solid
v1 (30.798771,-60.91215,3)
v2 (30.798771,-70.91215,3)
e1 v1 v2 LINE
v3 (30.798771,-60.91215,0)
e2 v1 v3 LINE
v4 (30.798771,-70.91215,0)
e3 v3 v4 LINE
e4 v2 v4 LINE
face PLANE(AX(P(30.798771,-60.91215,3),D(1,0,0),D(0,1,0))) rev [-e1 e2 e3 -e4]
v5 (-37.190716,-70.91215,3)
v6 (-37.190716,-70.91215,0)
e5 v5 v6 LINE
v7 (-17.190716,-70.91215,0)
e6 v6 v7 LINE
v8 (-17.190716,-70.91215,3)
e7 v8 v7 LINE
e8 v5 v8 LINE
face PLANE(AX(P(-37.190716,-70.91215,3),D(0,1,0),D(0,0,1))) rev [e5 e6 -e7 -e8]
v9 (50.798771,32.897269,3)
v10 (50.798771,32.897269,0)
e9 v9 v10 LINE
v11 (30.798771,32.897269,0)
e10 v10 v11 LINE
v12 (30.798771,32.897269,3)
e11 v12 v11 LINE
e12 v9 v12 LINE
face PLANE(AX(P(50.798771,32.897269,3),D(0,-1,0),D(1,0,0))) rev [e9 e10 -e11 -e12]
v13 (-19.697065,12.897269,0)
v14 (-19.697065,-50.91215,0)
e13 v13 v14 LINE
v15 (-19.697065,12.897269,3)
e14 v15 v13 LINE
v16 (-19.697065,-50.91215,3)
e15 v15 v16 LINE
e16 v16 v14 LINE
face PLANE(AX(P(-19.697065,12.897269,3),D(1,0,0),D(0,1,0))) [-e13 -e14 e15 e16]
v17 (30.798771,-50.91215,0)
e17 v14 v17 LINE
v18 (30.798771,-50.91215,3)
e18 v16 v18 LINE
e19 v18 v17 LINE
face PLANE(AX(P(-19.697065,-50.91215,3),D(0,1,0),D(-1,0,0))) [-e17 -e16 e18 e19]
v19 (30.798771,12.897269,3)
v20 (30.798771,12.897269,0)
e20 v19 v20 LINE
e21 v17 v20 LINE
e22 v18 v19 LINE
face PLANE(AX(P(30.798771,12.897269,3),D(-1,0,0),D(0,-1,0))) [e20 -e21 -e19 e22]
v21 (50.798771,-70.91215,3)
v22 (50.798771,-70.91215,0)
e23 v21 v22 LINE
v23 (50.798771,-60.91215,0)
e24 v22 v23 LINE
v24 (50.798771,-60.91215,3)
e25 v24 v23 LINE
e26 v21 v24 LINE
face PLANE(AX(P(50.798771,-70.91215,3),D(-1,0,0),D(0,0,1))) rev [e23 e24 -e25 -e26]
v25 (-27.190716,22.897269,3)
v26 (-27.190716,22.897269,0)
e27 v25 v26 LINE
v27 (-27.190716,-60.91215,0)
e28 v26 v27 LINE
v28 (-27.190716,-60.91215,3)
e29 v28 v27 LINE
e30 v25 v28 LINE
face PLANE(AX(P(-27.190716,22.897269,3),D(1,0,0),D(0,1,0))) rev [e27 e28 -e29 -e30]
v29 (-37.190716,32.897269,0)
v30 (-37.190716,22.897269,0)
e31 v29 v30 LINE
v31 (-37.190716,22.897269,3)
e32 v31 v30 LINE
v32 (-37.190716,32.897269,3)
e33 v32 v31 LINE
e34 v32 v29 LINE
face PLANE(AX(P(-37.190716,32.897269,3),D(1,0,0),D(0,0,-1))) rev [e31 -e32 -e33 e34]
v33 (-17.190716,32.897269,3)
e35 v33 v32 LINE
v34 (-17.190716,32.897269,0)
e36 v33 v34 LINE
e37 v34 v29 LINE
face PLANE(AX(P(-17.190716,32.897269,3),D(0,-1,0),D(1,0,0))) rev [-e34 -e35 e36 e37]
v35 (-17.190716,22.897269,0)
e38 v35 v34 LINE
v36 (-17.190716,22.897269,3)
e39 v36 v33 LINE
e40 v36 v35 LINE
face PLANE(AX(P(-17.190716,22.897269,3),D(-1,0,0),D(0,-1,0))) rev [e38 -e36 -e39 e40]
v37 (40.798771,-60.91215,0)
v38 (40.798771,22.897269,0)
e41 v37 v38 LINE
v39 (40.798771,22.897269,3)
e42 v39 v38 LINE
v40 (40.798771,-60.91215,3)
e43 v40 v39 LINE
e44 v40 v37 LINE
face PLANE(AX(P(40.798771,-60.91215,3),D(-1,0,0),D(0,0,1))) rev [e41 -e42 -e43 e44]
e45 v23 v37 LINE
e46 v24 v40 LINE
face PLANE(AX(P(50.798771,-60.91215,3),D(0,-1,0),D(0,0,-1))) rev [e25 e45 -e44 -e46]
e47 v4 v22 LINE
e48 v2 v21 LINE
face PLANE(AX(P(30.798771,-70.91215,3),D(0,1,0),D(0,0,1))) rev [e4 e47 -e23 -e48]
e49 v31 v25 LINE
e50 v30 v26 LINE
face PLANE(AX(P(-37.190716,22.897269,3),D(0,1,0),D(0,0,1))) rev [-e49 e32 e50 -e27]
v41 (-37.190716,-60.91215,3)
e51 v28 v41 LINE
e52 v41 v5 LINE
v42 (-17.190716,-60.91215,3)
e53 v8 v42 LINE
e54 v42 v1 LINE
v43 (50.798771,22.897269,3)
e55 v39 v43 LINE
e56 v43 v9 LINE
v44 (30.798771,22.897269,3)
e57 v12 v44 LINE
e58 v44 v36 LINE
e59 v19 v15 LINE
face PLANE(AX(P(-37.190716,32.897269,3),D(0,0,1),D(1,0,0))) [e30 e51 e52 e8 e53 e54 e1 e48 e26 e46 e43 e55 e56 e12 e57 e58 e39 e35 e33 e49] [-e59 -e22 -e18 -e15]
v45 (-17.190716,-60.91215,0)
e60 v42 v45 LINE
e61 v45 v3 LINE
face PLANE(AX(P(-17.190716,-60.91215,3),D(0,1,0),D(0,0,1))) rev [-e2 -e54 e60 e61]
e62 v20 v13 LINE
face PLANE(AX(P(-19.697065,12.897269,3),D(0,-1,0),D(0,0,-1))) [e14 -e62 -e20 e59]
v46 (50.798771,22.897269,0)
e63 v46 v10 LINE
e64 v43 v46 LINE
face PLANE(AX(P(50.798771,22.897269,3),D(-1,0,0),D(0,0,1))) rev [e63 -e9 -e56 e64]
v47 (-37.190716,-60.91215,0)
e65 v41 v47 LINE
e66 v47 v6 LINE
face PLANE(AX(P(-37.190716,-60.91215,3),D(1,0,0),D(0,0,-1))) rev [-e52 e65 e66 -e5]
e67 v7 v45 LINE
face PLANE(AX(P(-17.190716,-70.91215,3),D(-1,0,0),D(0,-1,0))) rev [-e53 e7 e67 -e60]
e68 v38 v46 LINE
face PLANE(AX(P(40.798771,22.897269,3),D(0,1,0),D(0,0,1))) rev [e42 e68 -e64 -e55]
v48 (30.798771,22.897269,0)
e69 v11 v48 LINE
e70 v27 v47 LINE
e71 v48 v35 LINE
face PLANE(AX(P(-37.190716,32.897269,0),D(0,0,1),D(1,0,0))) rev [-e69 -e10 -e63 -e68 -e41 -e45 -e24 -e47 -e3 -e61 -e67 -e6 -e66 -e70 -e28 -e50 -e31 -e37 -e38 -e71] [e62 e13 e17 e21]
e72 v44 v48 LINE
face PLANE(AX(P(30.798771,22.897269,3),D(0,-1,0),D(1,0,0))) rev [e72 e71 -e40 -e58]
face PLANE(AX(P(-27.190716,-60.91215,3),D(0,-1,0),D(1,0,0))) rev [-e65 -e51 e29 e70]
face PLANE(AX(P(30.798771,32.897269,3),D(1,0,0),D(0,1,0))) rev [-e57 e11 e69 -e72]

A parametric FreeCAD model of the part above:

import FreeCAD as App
import Part
import Sketcher
Q = App.Units.Quantity

doc = App.newDocument("Part")
body = doc.addObject("PartDesign::Body", "Body")

sketch1 = body.newObject("Sketcher::SketchObject", "Sketch")
sketch1.AttachmentSupport = (doc.getObject("XY_Plane"), [""])
sketch1.MapMode = "FlatFace"
sketch1.addGeometry([
    Part.LineSegment(App.Vector(-37.190716, 32.897269, 0), App.Vector(-37.190716, 22.897269, 0)),
    Part.LineSegment(App.Vector(-37.190716, 22.897269, 0), App.Vector(-27.190716, 22.897269, 0)),
    Part.LineSegment(App.Vector(-27.190716, 22.897269, 0), App.Vector(-27.190716, -60.91215, 0)),
    Part.LineSegment(App.Vector(-27.190716, -60.91215, 0), App.Vector(-37.190716, -60.91215, 0)),
    Part.LineSegment(App.Vector(-37.190716, -60.91215, 0), App.Vector(-37.190716, -70.91215, 0)),
    Part.LineSegment(App.Vector(-37.190716, -70.91215, 0), App.Vector(-17.190716, -70.91215, 0)),
    Part.LineSegment(App.Vector(-17.190716, -70.91215, 0), App.Vector(-17.190716, -60.91215, 0)),
    Part.LineSegment(App.Vector(-17.190716, -60.91215, 0), App.Vector(30.798771, -60.91215, 0)),
    Part.LineSegment(App.Vector(30.798771, -60.91215, 0), App.Vector(30.798771, -70.91215, 0)),
    Part.LineSegment(App.Vector(30.798771, -70.91215, 0), App.Vector(50.798771, -70.91215, 0)),
    Part.LineSegment(App.Vector(50.798771, -70.91215, 0), App.Vector(50.798771, -60.91215, 0)),
    Part.LineSegment(App.Vector(50.798771, -60.91215, 0), App.Vector(40.798771, -60.91215, 0)),
    Part.LineSegment(App.Vector(40.798771, -60.91215, 0), App.Vector(40.798771, 22.897269, 0)),
    Part.LineSegment(App.Vector(40.798771, 22.897269, 0), App.Vector(50.798771, 22.897269, 0)),
    Part.LineSegment(App.Vector(50.798771, 22.897269, 0), App.Vector(50.798771, 32.897269, 0)),
    Part.LineSegment(App.Vector(50.798771, 32.897269, 0), App.Vector(30.798771, 32.897269, 0)),
    Part.LineSegment(App.Vector(30.798771, 32.897269, 0), App.Vector(30.798771, 22.897269, 0)),
    Part.LineSegment(App.Vector(30.798771, 22.897269, 0), App.Vector(-17.190716, 22.897269, 0)),
    Part.LineSegment(App.Vector(-17.190716, 22.897269, 0), App.Vector(-17.190716, 32.897269, 0)),
    Part.LineSegment(App.Vector(-17.190716, 32.897269, 0), App.Vector(-37.190716, 32.897269, 0)),
    Part.LineSegment(App.Vector(30.798771, -50.91215, 0), App.Vector(-19.697065, -50.91215, 0)),
    Part.LineSegment(App.Vector(-19.697065, -50.91215, 0), App.Vector(-19.697065, 12.897269, 0)),
    Part.LineSegment(App.Vector(-19.697065, 12.897269, 0), App.Vector(30.798771, 12.897269, 0)),
    Part.LineSegment(App.Vector(30.798771, 12.897269, 0), App.Vector(30.798771, -50.91215, 0)),
], False)
sketch1.addConstraint([
    Sketcher.Constraint("Coincident", 0, 2, 1, 1),
    Sketcher.Constraint("Coincident", 1, 2, 2, 1),
    Sketcher.Constraint("Coincident", 2, 2, 3, 1),
    Sketcher.Constraint("Coincident", 3, 2, 4, 1),
    Sketcher.Constraint("Coincident", 4, 2, 5, 1),
    Sketcher.Constraint("Coincident", 5, 2, 6, 1),
    Sketcher.Constraint("Coincident", 6, 2, 7, 1),
    Sketcher.Constraint("Coincident", 7, 2, 8, 1),
    Sketcher.Constraint("Coincident", 8, 2, 9, 1),
    Sketcher.Constraint("Coincident", 9, 2, 10, 1),
    Sketcher.Constraint("Coincident", 10, 2, 11, 1),
    Sketcher.Constraint("Coincident", 11, 2, 12, 1),
    Sketcher.Constraint("Coincident", 12, 2, 13, 1),
    Sketcher.Constraint("Coincident", 13, 2, 14, 1),
    Sketcher.Constraint("Coincident", 14, 2, 15, 1),
    Sketcher.Constraint("Coincident", 15, 2, 16, 1),
    Sketcher.Constraint("Coincident", 16, 2, 17, 1),
    Sketcher.Constraint("Coincident", 17, 2, 18, 1),
    Sketcher.Constraint("Coincident", 18, 2, 19, 1),
    Sketcher.Constraint("Coincident", 19, 2, 0, 1),
    Sketcher.Constraint("Coincident", 20, 2, 21, 1),
    Sketcher.Constraint("Coincident", 21, 2, 22, 1),
    Sketcher.Constraint("Coincident", 22, 2, 23, 1),
    Sketcher.Constraint("Coincident", 23, 2, 20, 1),
    Sketcher.Constraint("Vertical", 0),
    Sketcher.Constraint("Horizontal", 1),
    Sketcher.Constraint("Vertical", 2),
    Sketcher.Constraint("Horizontal", 3),
    Sketcher.Constraint("Vertical", 4),
    Sketcher.Constraint("Horizontal", 5),
    Sketcher.Constraint("Vertical", 6),
    Sketcher.Constraint("Horizontal", 7),
    Sketcher.Constraint("Vertical", 8),
    Sketcher.Constraint("Horizontal", 9),
    Sketcher.Constraint("Vertical", 10),
    Sketcher.Constraint("Horizontal", 11),
    Sketcher.Constraint("Vertical", 12),
    Sketcher.Constraint("Horizontal", 13),
    Sketcher.Constraint("Vertical", 14),
    Sketcher.Constraint("Horizontal", 15),
    Sketcher.Constraint("Vertical", 16),
    Sketcher.Constraint("Horizontal", 17),
    Sketcher.Constraint("Vertical", 18),
    Sketcher.Constraint("Horizontal", 19),
    Sketcher.Constraint("Horizontal", 20),
    Sketcher.Constraint("Vertical", 21),
    Sketcher.Constraint("Horizontal", 22),
    Sketcher.Constraint("Vertical", 23),
    Sketcher.Constraint("Horizontal", 3, 2, 6, 2),
    Sketcher.Constraint("Horizontal", 5, 2, 8, 2),
    Sketcher.Constraint("Horizontal", 7, 2, 10, 2),
    Sketcher.Constraint("Horizontal", 1, 2, 12, 2),
    Sketcher.Constraint("Horizontal", 13, 2, 16, 2),
    Sketcher.Constraint("Horizontal", 15, 2, 18, 2),
    Sketcher.Constraint("Vertical", 0, 2, 3, 2),
    Sketcher.Constraint("Vertical", 10, 2, 13, 2),
    Sketcher.Constraint("Vertical", 8, 2, 15, 2),
    Sketcher.Constraint("Vertical", 6, 2, 17, 2),
    Sketcher.Constraint("Vertical", 16, 2, 22, 2),
    Sketcher.Constraint("Equal", 5, 9),
    Sketcher.Constraint("Equal", 3, 11),
    Sketcher.Constraint("Equal", 13, 0),
    Sketcher.Constraint("Equal", 0, 4),
    Sketcher.Constraint("DistanceX", 1, 1, 1, 2, Q("10 mm")),
    Sketcher.Constraint("DistanceX", 5, 1, 5, 2, Q("20 mm")),
    Sketcher.Constraint("DistanceY", 6, 2, 20, 2, Q("10 mm")),
    Sketcher.Constraint("DistanceY", 21, 2, 17, 2, Q("10 mm")),
    Sketcher.Constraint("DistanceY", 2, 2, 2, 1, Q("83.809419 mm")),
    Sketcher.Constraint("DistanceX", 7, 1, 7, 2, Q("47.989487 mm")),
    Sketcher.Constraint("DistanceX", 20, 2, 20, 1, Q("50.495836 mm")),
    Sketcher.Constraint("DistanceY", -1, 1, 0, 2, Q("22.897269 mm")),
    Sketcher.Constraint("DistanceX", -1, 1, 7, 2, Q("30.798771 mm")),
])
pad1 = body.newObject("PartDesign::Pad", "Pad")
pad1.Profile = sketch1
pad1.Length = 3

doc.recompute()
